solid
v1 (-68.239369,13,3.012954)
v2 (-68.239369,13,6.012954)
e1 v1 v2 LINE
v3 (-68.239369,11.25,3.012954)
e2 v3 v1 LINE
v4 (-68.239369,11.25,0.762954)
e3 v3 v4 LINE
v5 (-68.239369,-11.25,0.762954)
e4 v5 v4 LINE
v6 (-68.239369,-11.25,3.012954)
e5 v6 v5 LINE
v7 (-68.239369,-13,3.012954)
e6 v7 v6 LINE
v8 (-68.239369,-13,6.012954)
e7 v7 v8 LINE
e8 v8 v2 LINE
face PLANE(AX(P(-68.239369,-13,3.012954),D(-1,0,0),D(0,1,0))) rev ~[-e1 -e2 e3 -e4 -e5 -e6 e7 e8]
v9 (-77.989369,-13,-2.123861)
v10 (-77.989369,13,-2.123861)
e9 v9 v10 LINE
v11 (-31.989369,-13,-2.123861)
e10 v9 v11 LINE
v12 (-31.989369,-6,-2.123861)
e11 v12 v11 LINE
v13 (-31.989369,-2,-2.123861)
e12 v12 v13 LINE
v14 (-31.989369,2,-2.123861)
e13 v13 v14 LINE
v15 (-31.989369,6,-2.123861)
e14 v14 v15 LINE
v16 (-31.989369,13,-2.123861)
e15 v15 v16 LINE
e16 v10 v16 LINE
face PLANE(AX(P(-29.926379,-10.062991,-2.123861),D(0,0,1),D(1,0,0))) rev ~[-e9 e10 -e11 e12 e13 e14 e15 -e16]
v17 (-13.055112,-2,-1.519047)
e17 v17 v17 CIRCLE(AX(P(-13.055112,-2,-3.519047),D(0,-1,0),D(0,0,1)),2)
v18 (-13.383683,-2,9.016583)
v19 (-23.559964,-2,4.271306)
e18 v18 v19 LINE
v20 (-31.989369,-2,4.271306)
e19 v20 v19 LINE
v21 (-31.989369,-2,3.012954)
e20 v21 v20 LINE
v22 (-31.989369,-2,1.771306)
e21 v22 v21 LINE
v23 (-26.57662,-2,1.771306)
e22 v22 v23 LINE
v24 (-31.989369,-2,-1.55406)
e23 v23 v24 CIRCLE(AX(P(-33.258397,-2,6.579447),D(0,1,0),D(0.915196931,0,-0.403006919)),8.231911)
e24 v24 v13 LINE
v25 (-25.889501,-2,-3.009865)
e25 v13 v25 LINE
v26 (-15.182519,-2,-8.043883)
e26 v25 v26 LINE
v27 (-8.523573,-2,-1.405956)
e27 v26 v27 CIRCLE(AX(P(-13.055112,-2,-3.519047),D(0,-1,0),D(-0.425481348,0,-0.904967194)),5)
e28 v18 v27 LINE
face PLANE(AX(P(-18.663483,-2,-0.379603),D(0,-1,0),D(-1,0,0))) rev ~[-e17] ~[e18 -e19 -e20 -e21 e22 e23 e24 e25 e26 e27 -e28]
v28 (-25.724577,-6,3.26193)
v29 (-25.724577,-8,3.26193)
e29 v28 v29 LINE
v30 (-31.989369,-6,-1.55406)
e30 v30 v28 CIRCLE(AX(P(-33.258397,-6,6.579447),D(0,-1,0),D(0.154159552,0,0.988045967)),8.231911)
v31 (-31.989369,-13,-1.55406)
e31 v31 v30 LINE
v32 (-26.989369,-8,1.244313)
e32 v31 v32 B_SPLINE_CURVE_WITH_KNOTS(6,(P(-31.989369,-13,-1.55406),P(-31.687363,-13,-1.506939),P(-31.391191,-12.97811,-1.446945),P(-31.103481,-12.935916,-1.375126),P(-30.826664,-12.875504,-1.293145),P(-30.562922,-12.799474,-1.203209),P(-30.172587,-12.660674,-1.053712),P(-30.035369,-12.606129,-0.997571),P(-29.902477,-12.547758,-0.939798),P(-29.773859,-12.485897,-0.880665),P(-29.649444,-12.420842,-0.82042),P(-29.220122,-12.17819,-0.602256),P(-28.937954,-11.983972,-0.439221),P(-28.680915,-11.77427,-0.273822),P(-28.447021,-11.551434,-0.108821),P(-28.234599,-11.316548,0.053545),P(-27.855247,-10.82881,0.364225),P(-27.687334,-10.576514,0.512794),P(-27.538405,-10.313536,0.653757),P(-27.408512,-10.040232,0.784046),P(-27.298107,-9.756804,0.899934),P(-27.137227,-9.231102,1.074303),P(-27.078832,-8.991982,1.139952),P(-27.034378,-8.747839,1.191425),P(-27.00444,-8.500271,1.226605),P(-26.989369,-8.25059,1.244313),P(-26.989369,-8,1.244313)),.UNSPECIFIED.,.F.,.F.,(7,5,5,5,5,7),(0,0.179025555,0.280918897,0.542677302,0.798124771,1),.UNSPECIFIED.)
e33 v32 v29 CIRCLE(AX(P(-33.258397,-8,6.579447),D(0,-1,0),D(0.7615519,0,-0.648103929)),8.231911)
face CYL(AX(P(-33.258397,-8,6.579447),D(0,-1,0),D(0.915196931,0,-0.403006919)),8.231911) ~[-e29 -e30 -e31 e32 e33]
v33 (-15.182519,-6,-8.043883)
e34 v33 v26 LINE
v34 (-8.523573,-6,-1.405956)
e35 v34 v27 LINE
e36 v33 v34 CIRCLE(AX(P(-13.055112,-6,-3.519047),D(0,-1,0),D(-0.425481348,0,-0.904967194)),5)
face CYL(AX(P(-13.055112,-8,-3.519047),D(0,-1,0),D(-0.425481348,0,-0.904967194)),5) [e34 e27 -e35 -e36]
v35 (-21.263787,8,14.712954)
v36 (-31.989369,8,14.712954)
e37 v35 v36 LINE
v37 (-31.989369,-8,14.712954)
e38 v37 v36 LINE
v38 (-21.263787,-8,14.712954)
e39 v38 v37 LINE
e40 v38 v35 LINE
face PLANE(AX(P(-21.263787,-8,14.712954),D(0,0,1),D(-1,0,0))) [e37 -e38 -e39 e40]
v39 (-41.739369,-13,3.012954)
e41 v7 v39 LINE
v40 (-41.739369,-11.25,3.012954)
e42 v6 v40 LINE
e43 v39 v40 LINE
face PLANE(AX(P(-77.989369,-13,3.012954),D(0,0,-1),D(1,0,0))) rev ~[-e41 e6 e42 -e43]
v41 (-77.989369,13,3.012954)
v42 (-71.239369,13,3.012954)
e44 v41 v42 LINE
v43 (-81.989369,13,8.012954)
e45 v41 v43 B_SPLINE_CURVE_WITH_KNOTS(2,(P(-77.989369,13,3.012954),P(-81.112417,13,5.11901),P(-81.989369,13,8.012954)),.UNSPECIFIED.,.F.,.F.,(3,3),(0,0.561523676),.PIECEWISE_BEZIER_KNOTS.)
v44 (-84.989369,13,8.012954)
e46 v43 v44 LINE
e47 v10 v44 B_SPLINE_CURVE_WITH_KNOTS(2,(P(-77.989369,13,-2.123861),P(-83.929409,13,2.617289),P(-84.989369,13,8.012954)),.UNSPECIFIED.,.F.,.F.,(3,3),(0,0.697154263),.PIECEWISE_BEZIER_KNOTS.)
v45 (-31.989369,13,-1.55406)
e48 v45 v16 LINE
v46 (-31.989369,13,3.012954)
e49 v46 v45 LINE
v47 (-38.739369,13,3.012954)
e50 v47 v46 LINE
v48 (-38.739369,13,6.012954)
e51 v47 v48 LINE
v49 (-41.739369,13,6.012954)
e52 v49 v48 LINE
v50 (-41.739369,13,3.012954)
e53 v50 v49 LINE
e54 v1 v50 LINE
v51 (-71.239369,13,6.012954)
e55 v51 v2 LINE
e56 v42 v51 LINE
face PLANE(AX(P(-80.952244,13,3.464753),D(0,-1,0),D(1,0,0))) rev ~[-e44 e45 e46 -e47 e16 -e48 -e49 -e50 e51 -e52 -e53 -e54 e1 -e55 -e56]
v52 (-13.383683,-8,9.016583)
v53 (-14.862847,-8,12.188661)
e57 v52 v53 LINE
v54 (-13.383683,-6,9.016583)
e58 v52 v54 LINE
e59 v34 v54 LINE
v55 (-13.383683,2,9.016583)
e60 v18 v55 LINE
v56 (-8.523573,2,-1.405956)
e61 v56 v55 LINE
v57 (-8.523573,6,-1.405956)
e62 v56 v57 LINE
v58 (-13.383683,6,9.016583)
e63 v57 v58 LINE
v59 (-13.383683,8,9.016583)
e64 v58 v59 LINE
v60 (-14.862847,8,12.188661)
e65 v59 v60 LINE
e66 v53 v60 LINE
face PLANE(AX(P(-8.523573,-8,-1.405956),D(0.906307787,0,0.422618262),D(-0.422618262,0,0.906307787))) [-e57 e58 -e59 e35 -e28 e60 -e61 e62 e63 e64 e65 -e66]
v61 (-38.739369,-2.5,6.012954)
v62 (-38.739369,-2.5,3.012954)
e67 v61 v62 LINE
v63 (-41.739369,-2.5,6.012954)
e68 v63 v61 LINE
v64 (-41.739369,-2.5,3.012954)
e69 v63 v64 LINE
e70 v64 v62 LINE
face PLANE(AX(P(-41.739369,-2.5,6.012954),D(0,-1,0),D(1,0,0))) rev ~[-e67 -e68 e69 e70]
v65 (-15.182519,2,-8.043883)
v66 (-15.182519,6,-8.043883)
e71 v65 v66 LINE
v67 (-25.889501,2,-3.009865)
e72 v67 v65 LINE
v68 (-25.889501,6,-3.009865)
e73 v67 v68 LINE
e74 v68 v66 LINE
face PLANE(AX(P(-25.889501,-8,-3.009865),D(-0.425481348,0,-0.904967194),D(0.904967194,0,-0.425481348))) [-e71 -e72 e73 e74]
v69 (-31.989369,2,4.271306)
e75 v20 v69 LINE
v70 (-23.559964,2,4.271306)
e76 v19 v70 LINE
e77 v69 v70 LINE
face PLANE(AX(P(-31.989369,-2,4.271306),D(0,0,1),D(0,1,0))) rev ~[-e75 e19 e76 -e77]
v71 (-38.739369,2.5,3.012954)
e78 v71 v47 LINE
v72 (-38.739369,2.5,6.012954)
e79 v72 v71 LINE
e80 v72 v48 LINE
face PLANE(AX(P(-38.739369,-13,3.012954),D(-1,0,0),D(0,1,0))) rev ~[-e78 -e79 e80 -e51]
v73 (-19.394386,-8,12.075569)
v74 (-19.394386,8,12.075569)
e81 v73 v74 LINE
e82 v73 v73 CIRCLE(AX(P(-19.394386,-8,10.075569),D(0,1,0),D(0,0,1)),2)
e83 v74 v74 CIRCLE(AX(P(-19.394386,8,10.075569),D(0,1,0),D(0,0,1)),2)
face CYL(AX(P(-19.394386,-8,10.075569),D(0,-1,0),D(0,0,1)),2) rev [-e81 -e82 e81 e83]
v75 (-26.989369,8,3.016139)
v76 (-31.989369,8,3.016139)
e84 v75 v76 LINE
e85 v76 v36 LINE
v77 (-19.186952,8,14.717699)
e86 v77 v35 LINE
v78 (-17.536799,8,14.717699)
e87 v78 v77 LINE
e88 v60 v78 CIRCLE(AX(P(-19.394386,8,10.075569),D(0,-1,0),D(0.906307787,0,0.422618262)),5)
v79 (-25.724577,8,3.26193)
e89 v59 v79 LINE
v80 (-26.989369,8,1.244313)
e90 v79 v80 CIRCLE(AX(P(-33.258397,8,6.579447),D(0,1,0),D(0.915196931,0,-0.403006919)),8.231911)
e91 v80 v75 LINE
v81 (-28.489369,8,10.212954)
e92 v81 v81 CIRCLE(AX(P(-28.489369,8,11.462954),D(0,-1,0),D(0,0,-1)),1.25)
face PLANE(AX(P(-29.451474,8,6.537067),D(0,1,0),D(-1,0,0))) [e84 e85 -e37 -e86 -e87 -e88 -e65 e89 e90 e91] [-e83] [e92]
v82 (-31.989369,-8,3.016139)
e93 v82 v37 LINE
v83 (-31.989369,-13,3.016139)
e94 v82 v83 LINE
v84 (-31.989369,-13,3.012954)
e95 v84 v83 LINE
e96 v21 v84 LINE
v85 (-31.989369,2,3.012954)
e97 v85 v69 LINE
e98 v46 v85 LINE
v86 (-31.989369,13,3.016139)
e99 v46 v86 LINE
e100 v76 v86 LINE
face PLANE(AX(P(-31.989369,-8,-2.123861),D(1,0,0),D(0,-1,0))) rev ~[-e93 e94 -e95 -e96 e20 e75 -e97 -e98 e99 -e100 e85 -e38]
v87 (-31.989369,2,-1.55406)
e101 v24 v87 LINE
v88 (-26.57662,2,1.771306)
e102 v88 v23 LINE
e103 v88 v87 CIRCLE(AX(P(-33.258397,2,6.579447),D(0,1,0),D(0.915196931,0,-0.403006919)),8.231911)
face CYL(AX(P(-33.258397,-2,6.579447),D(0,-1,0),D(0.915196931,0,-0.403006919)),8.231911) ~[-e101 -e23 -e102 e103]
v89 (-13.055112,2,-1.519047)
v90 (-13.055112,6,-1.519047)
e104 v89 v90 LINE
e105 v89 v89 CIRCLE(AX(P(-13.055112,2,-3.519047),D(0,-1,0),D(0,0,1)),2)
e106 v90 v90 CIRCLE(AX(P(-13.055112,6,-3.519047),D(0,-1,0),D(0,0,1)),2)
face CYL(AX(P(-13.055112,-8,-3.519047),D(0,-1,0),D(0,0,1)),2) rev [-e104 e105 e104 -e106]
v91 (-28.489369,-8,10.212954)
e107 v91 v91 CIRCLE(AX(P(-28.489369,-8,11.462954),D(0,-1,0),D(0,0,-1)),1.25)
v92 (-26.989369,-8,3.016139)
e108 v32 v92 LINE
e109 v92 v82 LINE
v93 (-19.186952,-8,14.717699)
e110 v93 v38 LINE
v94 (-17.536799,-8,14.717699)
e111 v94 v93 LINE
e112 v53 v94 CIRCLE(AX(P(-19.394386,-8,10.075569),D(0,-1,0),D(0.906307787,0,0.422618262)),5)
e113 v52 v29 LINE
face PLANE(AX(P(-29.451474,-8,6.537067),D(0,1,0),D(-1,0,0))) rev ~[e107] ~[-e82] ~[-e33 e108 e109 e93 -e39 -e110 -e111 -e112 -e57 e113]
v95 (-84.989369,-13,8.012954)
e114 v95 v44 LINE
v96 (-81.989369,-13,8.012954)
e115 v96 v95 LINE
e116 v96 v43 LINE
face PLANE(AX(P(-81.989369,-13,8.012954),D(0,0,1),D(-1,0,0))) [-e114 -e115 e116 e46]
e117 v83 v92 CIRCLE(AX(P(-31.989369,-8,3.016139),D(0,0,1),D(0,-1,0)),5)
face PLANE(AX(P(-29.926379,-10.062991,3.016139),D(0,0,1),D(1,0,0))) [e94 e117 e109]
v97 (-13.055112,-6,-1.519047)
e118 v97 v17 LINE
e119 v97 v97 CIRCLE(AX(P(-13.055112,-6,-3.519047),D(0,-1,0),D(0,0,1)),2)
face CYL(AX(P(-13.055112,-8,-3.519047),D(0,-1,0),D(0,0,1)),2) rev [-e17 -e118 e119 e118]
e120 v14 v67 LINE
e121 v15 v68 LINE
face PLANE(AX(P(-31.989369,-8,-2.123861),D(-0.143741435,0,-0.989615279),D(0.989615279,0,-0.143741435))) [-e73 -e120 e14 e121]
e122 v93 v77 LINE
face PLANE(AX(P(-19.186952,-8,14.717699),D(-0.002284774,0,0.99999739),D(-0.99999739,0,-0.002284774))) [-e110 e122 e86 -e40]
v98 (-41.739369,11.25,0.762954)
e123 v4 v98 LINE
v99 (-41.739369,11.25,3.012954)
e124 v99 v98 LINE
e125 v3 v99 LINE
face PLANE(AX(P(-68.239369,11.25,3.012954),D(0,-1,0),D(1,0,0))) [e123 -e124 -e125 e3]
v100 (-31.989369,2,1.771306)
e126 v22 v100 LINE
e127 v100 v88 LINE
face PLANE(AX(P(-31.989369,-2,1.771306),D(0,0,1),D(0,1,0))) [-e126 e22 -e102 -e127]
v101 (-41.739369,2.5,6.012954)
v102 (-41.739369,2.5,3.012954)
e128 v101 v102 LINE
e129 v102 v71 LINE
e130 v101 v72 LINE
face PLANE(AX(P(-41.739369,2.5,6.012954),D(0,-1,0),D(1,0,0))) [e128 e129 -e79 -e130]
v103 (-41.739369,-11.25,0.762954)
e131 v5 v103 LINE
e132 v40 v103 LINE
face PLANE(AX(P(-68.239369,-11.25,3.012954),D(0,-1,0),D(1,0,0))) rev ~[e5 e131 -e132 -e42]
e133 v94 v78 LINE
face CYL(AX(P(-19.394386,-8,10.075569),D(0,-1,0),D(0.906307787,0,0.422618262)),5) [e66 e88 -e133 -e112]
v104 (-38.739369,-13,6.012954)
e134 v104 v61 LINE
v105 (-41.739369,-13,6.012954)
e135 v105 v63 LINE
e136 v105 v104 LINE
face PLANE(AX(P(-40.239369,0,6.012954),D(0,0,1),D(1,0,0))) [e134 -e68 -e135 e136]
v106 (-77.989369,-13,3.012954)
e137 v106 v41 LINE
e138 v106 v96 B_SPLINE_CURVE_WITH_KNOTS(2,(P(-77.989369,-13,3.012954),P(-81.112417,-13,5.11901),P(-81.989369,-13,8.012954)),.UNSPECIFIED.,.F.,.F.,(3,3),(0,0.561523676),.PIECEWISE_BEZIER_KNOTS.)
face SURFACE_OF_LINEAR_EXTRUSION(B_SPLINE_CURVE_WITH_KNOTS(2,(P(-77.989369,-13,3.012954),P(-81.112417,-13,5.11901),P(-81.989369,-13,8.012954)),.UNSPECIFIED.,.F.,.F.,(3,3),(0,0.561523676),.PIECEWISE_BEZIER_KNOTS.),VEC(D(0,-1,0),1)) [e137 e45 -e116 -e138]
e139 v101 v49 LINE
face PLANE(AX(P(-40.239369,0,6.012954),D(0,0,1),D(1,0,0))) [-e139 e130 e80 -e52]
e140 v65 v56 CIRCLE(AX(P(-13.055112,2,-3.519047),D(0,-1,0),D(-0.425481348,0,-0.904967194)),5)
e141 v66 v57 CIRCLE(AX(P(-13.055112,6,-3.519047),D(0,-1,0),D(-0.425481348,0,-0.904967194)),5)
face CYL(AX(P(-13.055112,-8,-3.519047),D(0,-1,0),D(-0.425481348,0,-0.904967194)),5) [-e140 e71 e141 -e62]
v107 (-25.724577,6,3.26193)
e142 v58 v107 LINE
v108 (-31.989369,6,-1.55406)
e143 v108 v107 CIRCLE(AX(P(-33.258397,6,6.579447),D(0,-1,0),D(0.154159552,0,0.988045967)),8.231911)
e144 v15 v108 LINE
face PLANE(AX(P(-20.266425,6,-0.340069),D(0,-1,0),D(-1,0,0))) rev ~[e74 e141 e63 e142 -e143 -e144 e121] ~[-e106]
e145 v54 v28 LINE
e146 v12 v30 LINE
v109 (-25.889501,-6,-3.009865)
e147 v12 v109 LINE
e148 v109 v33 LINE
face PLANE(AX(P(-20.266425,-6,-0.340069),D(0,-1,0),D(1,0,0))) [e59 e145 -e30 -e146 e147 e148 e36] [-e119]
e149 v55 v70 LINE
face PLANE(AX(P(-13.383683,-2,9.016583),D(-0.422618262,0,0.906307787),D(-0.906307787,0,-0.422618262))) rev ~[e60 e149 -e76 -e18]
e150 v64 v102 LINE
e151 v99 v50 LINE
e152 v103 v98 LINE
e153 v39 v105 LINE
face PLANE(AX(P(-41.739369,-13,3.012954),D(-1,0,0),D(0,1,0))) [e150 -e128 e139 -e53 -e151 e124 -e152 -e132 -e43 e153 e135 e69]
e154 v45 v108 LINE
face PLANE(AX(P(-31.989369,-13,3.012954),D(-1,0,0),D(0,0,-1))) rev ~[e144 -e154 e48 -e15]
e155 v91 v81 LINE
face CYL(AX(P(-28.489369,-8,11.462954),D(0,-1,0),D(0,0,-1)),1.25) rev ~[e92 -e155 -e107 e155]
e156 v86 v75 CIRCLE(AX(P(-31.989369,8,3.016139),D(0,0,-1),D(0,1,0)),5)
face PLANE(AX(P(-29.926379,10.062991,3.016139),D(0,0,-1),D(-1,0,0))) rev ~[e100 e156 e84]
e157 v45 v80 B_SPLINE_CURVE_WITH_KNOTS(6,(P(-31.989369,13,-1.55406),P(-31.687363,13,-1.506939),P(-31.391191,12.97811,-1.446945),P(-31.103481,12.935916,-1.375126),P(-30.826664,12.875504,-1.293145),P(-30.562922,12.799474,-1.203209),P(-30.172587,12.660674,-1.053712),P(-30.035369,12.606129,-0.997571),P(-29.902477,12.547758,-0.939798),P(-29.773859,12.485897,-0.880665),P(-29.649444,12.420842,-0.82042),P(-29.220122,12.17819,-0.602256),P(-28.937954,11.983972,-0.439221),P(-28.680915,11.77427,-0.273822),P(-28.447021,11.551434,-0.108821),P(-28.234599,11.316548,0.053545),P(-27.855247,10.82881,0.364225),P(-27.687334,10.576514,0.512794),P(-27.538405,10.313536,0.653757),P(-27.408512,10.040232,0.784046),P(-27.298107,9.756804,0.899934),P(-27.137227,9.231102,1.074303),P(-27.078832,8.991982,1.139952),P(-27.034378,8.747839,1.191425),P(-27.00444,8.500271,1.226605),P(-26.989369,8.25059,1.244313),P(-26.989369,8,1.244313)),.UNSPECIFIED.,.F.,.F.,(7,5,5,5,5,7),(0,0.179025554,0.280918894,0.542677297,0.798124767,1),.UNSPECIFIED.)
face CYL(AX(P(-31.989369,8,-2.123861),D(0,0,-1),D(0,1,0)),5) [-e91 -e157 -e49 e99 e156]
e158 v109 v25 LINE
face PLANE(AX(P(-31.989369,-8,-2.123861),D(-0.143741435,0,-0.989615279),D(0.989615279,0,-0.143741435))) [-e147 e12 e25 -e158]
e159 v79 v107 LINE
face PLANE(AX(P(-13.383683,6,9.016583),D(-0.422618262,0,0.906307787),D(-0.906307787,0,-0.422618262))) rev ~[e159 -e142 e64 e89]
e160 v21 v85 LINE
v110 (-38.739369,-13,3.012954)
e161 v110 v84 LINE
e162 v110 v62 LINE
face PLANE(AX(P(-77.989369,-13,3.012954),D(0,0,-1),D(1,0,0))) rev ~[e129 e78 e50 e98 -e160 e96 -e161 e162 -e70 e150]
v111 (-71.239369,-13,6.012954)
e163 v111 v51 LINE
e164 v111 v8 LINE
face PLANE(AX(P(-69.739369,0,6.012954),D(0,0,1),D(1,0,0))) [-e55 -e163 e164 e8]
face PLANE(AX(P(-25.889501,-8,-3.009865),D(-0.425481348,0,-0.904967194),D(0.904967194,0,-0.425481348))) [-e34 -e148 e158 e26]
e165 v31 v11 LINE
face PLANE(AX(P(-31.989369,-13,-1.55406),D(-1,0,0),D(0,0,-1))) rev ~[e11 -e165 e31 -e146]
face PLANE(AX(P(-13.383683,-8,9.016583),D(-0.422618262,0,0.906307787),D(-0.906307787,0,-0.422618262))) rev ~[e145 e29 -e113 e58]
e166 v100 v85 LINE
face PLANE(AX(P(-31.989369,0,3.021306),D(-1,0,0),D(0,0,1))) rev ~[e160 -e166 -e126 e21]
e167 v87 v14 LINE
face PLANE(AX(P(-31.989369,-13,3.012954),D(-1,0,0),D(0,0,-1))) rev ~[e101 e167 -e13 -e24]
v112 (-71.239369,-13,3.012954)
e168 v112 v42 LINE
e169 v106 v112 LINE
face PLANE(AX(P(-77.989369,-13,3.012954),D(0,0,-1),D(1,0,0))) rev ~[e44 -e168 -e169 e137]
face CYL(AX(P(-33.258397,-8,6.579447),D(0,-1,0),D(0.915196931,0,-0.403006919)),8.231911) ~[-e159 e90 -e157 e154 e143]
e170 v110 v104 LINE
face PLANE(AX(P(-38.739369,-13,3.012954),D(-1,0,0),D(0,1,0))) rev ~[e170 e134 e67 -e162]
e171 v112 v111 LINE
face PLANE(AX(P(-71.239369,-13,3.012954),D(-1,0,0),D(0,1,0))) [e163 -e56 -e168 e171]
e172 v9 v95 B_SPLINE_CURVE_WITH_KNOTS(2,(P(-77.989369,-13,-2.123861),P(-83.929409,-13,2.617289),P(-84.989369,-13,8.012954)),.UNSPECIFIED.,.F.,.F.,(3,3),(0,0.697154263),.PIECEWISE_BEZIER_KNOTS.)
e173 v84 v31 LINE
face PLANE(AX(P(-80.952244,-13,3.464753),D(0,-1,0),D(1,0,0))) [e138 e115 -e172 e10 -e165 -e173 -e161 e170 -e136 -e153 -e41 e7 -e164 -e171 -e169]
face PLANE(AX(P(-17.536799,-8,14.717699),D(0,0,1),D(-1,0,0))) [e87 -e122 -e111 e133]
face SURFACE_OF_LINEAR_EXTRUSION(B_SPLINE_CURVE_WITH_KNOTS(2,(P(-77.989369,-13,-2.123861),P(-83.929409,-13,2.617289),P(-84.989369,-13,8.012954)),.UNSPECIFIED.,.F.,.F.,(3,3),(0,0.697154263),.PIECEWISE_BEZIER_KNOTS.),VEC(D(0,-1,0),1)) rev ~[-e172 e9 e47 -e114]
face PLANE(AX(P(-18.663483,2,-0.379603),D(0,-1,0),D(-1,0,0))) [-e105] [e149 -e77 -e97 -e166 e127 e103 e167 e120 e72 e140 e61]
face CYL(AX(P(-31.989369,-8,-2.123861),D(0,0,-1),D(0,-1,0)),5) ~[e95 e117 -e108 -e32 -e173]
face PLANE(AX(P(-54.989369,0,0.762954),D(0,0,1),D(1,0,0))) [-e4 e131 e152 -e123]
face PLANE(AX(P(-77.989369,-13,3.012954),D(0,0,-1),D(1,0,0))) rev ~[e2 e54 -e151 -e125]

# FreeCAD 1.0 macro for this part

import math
import FreeCAD as App
import Part
import Sketcher
from FreeCAD import Vector
Q = App.Units.Quantity


def add_polygon(sketch, points):
    """Adds a closed chain of lines whose ends are joined by coincident constraints."""
    first, n = sketch.GeometryCount, len(points)
    for a, b in zip(points, points[1:] + points[:1]):
        sketch.addGeometry(Part.LineSegment(App.Vector(*a, 0), App.Vector(*b, 0)), False)
    for i in range(n):
        sketch.addConstraint(Sketcher.Constraint("Coincident", first + i, 2, first + (i + 1) % n, 1))

doc = App.newDocument("Part")
body = doc.addObject("PartDesign::Body", "Body")

sketch1 = doc.addObject("Sketcher::SketchObject", "Sketch")
body.addObject(sketch1)
sketch1.AttachmentSupport = (doc.XZ_Plane, [""])
sketch1.MapMode = "FlatFace"
sketch1.addGeometry([
    Part.LineSegment(Vector(-14.862847, 12.188661, 0), Vector(-8.523573, -1.405956, 0)),
    Part.ArcOfCircle(Part.Circle(Vector(-13.055112, -3.519047, 0), Vector(0, 0, 1), 5), math.radians(-115.181135), math.radians(25)),
    Part.LineSegment(Vector(-15.182519, -8.043883, 0), Vector(-25.889501, -3.009865, 0)),
    Part.LineSegment(Vector(-25.889501, -3.009865, 0), Vector(-31.989369, -2.123861, 0)),
    Part.LineSegment(Vector(-31.989369, -2.123861, 0), Vector(-31.989369, -1.55406, 0)),
    Part.ArcOfCircle(Part.Circle(Vector(-33.258397, 6.579447, 0), Vector(0, 0, 1), 8.231911), math.radians(-81.131944), math.radians(81.131944)),
    Part.LineSegment(Vector(-31.989369, 14.712954, 0), Vector(-21.263787, 14.712954, 0)),
    Part.LineSegment(Vector(-21.263787, 14.712954, 0), Vector(-19.186952, 14.717699, 0)),
    Part.LineSegment(Vector(-19.186952, 14.717699, 0), Vector(-17.536799, 14.717699, 0)),
    Part.ArcOfCircle(Part.Circle(Vector(-19.394386, 10.075569, 0), Vector(0, 0, 1), 5), math.radians(25), math.radians(68.190768)),
    Part.Circle(Vector(-19.394386, 10.075569, 0), Vector(0, 0, 1), 2),
    Part.Circle(Vector(-13.055112, -3.519047, 0), Vector(0, 0, 1), 2),
], False)
sketch1.addConstraint([
    Sketcher.Constraint("Coincident", 0, 2, 1, 2),
    Sketcher.Constraint("Coincident", 1, 1, 2, 1),
    Sketcher.Constraint("Coincident", 2, 2, 3, 1),
    Sketcher.Constraint("Coincident", 3, 2, 4, 1),
    Sketcher.Constraint("Coincident", 4, 2, 5, 1),
    Sketcher.Constraint("Coincident", 5, 2, 6, 1),
    Sketcher.Constraint("Coincident", 6, 2, 7, 1),
    Sketcher.Constraint("Coincident", 7, 2, 8, 1),
    Sketcher.Constraint("Coincident", 8, 2, 9, 2),
    Sketcher.Constraint("Coincident", 9, 1, 0, 1),
    Sketcher.Constraint("Vertical", 4),
    Sketcher.Constraint("Horizontal", 6),
    Sketcher.Constraint("Horizontal", 8),
    Sketcher.Constraint("Coincident", 10, 3, 9, 3),
    Sketcher.Constraint("Coincident", 11, 3, 1, 3),
    Sketcher.Constraint("Diameter", 10, 4.0),
    Sketcher.Constraint("Diameter", 11, 4.0),
    Sketcher.Constraint("Radius", 1, 5.0),
    Sketcher.Constraint("Radius", 9, 5.0),
    Sketcher.Constraint("Distance", 0, 15.0),
    Sketcher.Constraint("Radius", 5, 8.231911),
    Sketcher.Constraint("DistanceY", 4, 1, 4, 2, 0.569801),
    Sketcher.Constraint("DistanceX", 6, 1, 6, 2, 10.725582),
    Sketcher.Constraint("DistanceX", 2, 2, -1, 1, 25.889501),
    Sketcher.Constraint("DistanceY", -1, 1, 7, 2, 14.717699),
    Sketcher.Constraint("DistanceX", 8, 2, -1, 1, 17.536799),
    Sketcher.Constraint("DistanceX", 6, 2, 10, 3, 1.869402),
    Sketcher.Constraint("Distance", 2, 11.831348),
    Sketcher.Constraint("Distance", 3, 6.163879),
    Sketcher.Constraint("Distance", 7, 2.076841),
    Sketcher.Constraint("DistanceX", 8, 1, 8, 2, 1.650153),
    Sketcher.Constraint("DistanceX", 1, 3, -1, 1, 13.055112),
    Sketcher.Constraint("DistanceX", 1, 1, -1, 1, 15.182519),
    Sketcher.Constraint("DistanceX", 3, 2, -1, 1, 31.989369),
    Sketcher.Constraint("DistanceY", 3, 2, -1, 1, 2.123861),
    Sketcher.Constraint("DistanceY", -1, 1, 9, 1, 12.188661),
    Sketcher.Constraint("DistanceX", 5, 3, 9, 3, 13.864011),
])
pad1 = doc.addObject("PartDesign::Pad", "Pad")
body.addObject(pad1)
pad1.Profile = sketch1
pad1.Type = "TwoLengths"
pad1.Length = 8
pad1.Length2 = 8
pad1.Reversed = True

sketch2 = doc.addObject("Sketcher::SketchObject", "Sketch001")
body.addObject(sketch2)
sketch2.AttachmentSupport = (doc.XZ_Plane, [""])
sketch2.MapMode = "FlatFace"
sketch2.AttachmentOffset = App.Placement(Vector(0, 0, 8), App.Rotation())
sketch2.addGeometry([
    Part.LineSegment(Vector(-13, 9, 0), Vector(-36, -2, 0)),
    Part.LineSegment(Vector(-36, -2, 0), Vector(-26, -3, 0)),
    Part.LineSegment(Vector(-26, -3, 0), Vector(-15, -8, 0)),
    Part.ArcOfCircle(Part.Circle(Vector(-13, -4, 0), Vector(0, 0, 1), 5), math.radians(-115), math.radians(25)),
    Part.LineSegment(Vector(-9, -1, 0), Vector(-13, 9, 0)),
], False)
sketch2.addConstraint([
    Sketcher.Constraint("Coincident", 0, 2, 1, 1),
    Sketcher.Constraint("Coincident", 1, 2, 2, 1),
    Sketcher.Constraint("Tangent", 2, 2, 3, 1),
    Sketcher.Constraint("Tangent", 3, 2, 4, 1),
    Sketcher.Constraint("Coincident", 4, 2, 0, 1),
    Sketcher.Constraint("Perpendicular", 0, 4),
    Sketcher.Constraint("Radius", 3, 5.0),
    Sketcher.Constraint("Angle", 0, Q("-155 deg")),
    Sketcher.Constraint("Distance", 4, 11.5),
    Sketcher.Constraint("DistanceX", 1, 2, -1, 1, 25.889501),
    Sketcher.Constraint("Distance", 2, 11.831348),
    Sketcher.Constraint("DistanceX", 3, 3, -1, 1, 13.055112),
    Sketcher.Constraint("DistanceY", 0, 2, -1, 1, 1.538529),
    Sketcher.Constraint("DistanceY", 3, 3, 0, 2, 1.980518),
])
pocket1 = doc.addObject("PartDesign::Pocket", "Pocket")
body.addObject(pocket1)
pocket1.Profile = sketch2
pocket1.Length = 2

sketch3 = doc.addObject("Sketcher::SketchObject", "Sketch002")
body.addObject(sketch3)
sketch3.AttachmentSupport = (doc.XZ_Plane, [""])
sketch3.MapMode = "FlatFace"
sketch3.AttachmentOffset = App.Placement(Vector(0, 0, -6), App.Rotation())
sketch3.addGeometry([
    Part.LineSegment(Vector(-36, -2, 0), Vector(-13, 9, 0)),
    Part.LineSegment(Vector(-13, 9, 0), Vector(-9, -1, 0)),
    Part.ArcOfCircle(Part.Circle(Vector(-13, -4, 0), Vector(0, 0, 1), 5), math.radians(-115), math.radians(25)),
    Part.LineSegment(Vector(-15, -8, 0), Vector(-26, -3, 0)),
    Part.LineSegment(Vector(-26, -3, 0), Vector(-36, -2, 0)),
], False)
sketch3.addConstraint([
    Sketcher.Constraint("Coincident", 0, 2, 1, 1),
    Sketcher.Constraint("Tangent", 1, 2, 2, 2),
    Sketcher.Constraint("Tangent", 2, 1, 3, 1),
    Sketcher.Constraint("Coincident", 3, 2, 4, 1),
    Sketcher.Constraint("Coincident", 4, 2, 0, 1),
    Sketcher.Constraint("Perpendicular", 0, 1),
    Sketcher.Constraint("Radius", 2, 5.0),
    Sketcher.Constraint("Angle", 0, Q("25 deg")),
    Sketcher.Constraint("Distance", 1, 11.5),
    Sketcher.Constraint("DistanceX", 3, 2, -1, 1, 25.889501),
    Sketcher.Constraint("Distance", 3, 11.831348),
    Sketcher.Constraint("DistanceX", 2, 3, -1, 1, 13.055112),
    Sketcher.Constraint("DistanceY", 4, 2, -1, 1, 1.538529),
    Sketcher.Constraint("DistanceY", 2, 3, 4, 2, 1.980518),
])
pocket2 = doc.addObject("PartDesign::Pocket", "Pocket001")
body.addObject(pocket2)
pocket2.Profile = sketch3
pocket2.Length = 2

sketch4 = doc.addObject("Sketcher::SketchObject", "Sketch003")
body.addObject(sketch4)
sketch4.AttachmentSupport = (doc.XZ_Plane, [""])
sketch4.MapMode = "FlatFace"
sketch4.AttachmentOffset = App.Placement(Vector(0, 0, 8), App.Rotation())
sketch4.addGeometry([
    Part.LineSegment(Vector(-32, 15, 0), Vector(-32, -2, 0)),
    Part.ArcOfCircle(Part.Circle(Vector(-33, 7, 0), Vector(0, 0, 1), 8), math.radians(-81), math.radians(-24)),
    Part.ArcOfCircle(Part.Circle(Vector(-33, 7, 0), Vector(0, 0, 1), 8), math.radians(-24), math.radians(81)),
], False)
sketch4.addConstraint([
    Sketcher.Constraint("Coincident", 0, 2, 1, 1),
    Sketcher.Constraint("Tangent", 1, 2, 2, 1),
    Sketcher.Constraint("Coincident", 2, 2, 0, 1),
    Sketcher.Constraint("Vertical", 0),
    Sketcher.Constraint("Equal", 1, 2),
    Sketcher.Constraint("Radius", 1, 8.231911),
    Sketcher.Constraint("DistanceY", 0, 2, 0, 1, 16.267014),
    Sketcher.Constraint("DistanceX", 0, 2, -1, 1, 31.989369),
    Sketcher.Constraint("DistanceY", 0, 2, -1, 1, 1.55406),
    Sketcher.Constraint("DistanceY", -1, 1, 1, 2, 3.26193),
])
pad2 = doc.addObject("PartDesign::Pad", "Pad001")
body.addObject(pad2)
pad2.Profile = sketch4
pad2.Length = 16
pad2.Reversed = True

sketch5 = doc.addObject("Sketcher::SketchObject", "Sketch004")
body.addObject(sketch5)
sketch5.AttachmentSupport = (doc.XZ_Plane, [""])
sketch5.MapMode = "FlatFace"
sketch5.addGeometry([
    Part.LineSegment(Vector(-15.2, -8, 0), Vector(-25.9, -3, 0)),
    Part.LineSegment(Vector(-25.9, -3, 0), Vector(-32, -2.1, 0)),
    Part.LineSegment(Vector(-32, -2.1, 0), Vector(-32, -1.6, 0)),
    Part.ArcOfCircle(Part.Circle(Vector(-33.3, 6.6, 0), Vector(0, 0, 1), 8.2), math.radians(-81), math.radians(-24)),
    Part.LineSegment(Vector(-25.7, 3.3, 0), Vector(-13.4, 9, 0)),
    Part.LineSegment(Vector(-13.4, 9, 0), Vector(-8.5, -1.4, 0)),
    Part.ArcOfCircle(Part.Circle(Vector(-13.1, -3.5, 0), Vector(0, 0, 1), 5), math.radians(-115), math.radians(25)),
], False)
sketch5.addConstraint([
    Sketcher.Constraint("Coincident", 0, 2, 1, 1),
    Sketcher.Constraint("Coincident", 1, 2, 2, 1),
    Sketcher.Constraint("Coincident", 2, 2, 3, 1),
    Sketcher.Constraint("Coincident", 3, 2, 4, 1),
    Sketcher.Constraint("Coincident", 4, 2, 5, 1),
    Sketcher.Constraint("Tangent", 5, 2, 6, 2),
    Sketcher.Constraint("Tangent", 6, 1, 0, 1),
    Sketcher.Constraint("Vertical", 2),
    Sketcher.Constraint("Perpendicular", 4, 5),
    Sketcher.Constraint("Radius", 6, 5.0),
    Sketcher.Constraint("Angle", 4, Q("25 deg")),
    Sketcher.Constraint("Distance", 5, 11.5),
    Sketcher.Constraint("Radius", 3, 8.231911),
    Sketcher.Constraint("DistanceY", 2, 1, 2, 2, 0.569801),
    Sketcher.Constraint("DistanceX", 0, 2, -1, 1, 25.889501),
    Sketcher.Constraint("Distance", 0, 11.831348),
    Sketcher.Constraint("Distance", 1, 6.163879),
    Sketcher.Constraint("Distance", 4, 13.61667),
    Sketcher.Constraint("DistanceX", 6, 3, -1, 1, 13.055112),
    Sketcher.Constraint("DistanceX", 1, 2, -1, 1, 31.989369),
    Sketcher.Constraint("DistanceY", 1, 2, -1, 1, 2.123861),
])
pocket3 = doc.addObject("PartDesign::Pocket", "Pocket002")
body.addObject(pocket3)
pocket3.Profile = sketch5
pocket3.Type = "TwoLengths"
pocket3.Length = 2
pocket3.Length2 = 2

sketch6 = doc.addObject("Sketcher::SketchObject", "Sketch005")
body.addObject(sketch6)
sketch6.AttachmentSupport = (doc.XZ_Plane, [""])
sketch6.MapMode = "FlatFace"
add_polygon(sketch6, [(-78, -2), (-78, 3), (-32, 3), (-32, -2)])
sketch6.addConstraint([
    Sketcher.Constraint("Vertical", 0),
    Sketcher.Constraint("Horizontal", 1),
    Sketcher.Constraint("Vertical", 2),
    Sketcher.Constraint("Horizontal", 3),
    Sketcher.Constraint("DistanceX", 1, 1, 1, 2, 46.0),
    Sketcher.Constraint("DistanceY", 0, 1, 0, 2, 5.136815),
    Sketcher.Constraint("DistanceX", 0, 2, -1, 1, 77.989369),
    Sketcher.Constraint("DistanceY", 2, 2, -1, 1, 2.123861),
])
pad3 = doc.addObject("PartDesign::Pad", "Pad002")
body.addObject(pad3)
pad3.Profile = sketch6
pad3.Type = "TwoLengths"
pad3.Length = 13
pad3.Length2 = 13
pad3.Reversed = True

sketch7 = doc.addObject("Sketcher::SketchObject", "Sketch006")
body.addObject(sketch7)
sketch7.AttachmentSupport = (doc.XZ_Plane, [""])
sketch7.MapMode = "FlatFace"
sketch7.AttachmentOffset = App.Placement(Vector(0, 0, 8), App.Rotation())
sketch7.addGeometry(Part.Circle(Vector(-28.5, 11.5, 0), Vector(0, 0, 1), 1.2), False)
sketch7.addConstraint([
    Sketcher.Constraint("Diameter", 0, 2.5),
    Sketcher.Constraint("DistanceX", 0, 3, -1, 1, 28.489369),
    Sketcher.Constraint("DistanceY", -1, 1, 0, 3, 11.462954),
])
pocket4 = doc.addObject("PartDesign::Pocket", "Pocket003")
body.addObject(pocket4)
pocket4.Profile = sketch7
pocket4.Length = 16

sketch8 = doc.addObject("Sketcher::SketchObject", "Sketch007")
body.addObject(sketch8)
sketch8.AttachmentSupport = (doc.XZ_Plane, [""])
sketch8.MapMode = "FlatFace"
sketch8.AttachmentOffset = App.Placement(Vector(0, 0, 13), App.Rotation())
sketch8.addGeometry([
    Part.LineSegment(Vector(-81.989369, 8.012954, 0), Vector(-84.989369, 8.012954, 0)),
    Part.BSplineCurve([Vector(-77.989369, -2.123861, 0), Vector(-83.929409, 2.617289, 0), Vector(-84.989369, 8.012954, 0)], [3, 3], [0, 0.697154263], False, 2, [1, 1, 1], False),
    Part.LineSegment(Vector(-77.989369, -2.123861, 0), Vector(-77.989369, 3.012954, 0)),
    Part.BSplineCurve([Vector(-77.989369, 3.012954, 0), Vector(-81.112417, 5.11901, 0), Vector(-81.989369, 8.012954, 0)], [3, 3], [0, 0.561523676], False, 2, [1, 1, 1], False),
], False)
sketch8.addConstraint([
    Sketcher.Constraint("Block", 1),
    Sketcher.Constraint("Block", 3),
    Sketcher.Constraint("Coincident", 0, 2, 1, 2),
    Sketcher.Constraint("Coincident", 1, 1, 2, 1),
    Sketcher.Constraint("Coincident", 2, 2, 3, 1),
    Sketcher.Constraint("Coincident", 3, 2, 0, 1),
])
pad4 = doc.addObject("PartDesign::Pad", "Pad003")
body.addObject(pad4)
pad4.Profile = sketch8
pad4.Length = 26
pad4.Reversed = True

sketch9 = doc.addObject("Sketcher::SketchObject", "Sketch008")
body.addObject(sketch9)
sketch9.AttachmentSupport = (doc.XY_Plane, [""])
sketch9.MapMode = "FlatFace"
sketch9.AttachmentOffset = App.Placement(Vector(0, 0, 3.012954), App.Rotation())
add_polygon(sketch9, [(-41.7, 13), (-41.7, -13), (-38.7, -13), (-38.7, 13)])
add_polygon(sketch9, [(-71.2, 13), (-71.2, -13), (-68.2, -13), (-68.2, 13)])
sketch9.addConstraint([
    Sketcher.Constraint("Vertical", 0),
    Sketcher.Constraint("Horizontal", 1),
    Sketcher.Constraint("Vertical", 2),
    Sketcher.Constraint("Horizontal", 3),
    Sketcher.Constraint("Vertical", 4),
    Sketcher.Constraint("Horizontal", 5),
    Sketcher.Constraint("Vertical", 6),
    Sketcher.Constraint("Horizontal", 7),
    Sketcher.Constraint("Horizontal", 1, 2, 4, 2),
    Sketcher.Constraint("Horizontal", 3, 2, 6, 2),
    Sketcher.Constraint("Equal", 3, 5),
    Sketcher.Constraint("DistanceX", 1, 1, 1, 2, 3.0),
    Sketcher.Constraint("DistanceY", 0, 2, 0, 1, 26.0),
    Sketcher.Constraint("DistanceY", 0, 2, -1, 1, 13.0),
    Sketcher.Constraint("DistanceX", 4, 2, 0, 2, 29.5),
    Sketcher.Constraint("DistanceX", 0, 2, -1, 1, 41.739369),
])
pad5 = doc.addObject("PartDesign::Pad", "Pad004")
body.addObject(pad5)
pad5.Profile = sketch9
pad5.Length = 3

sketch10 = doc.addObject("Sketcher::SketchObject", "Sketch009")
body.addObject(sketch10)
sketch10.AttachmentSupport = (doc.YZ_Plane, [""])
sketch10.MapMode = "FlatFace"
sketch10.AttachmentOffset = App.Placement(Vector(0, 0, -31.989369), App.Rotation())
add_polygon(sketch10, [(2, 1.8), (-2, 1.8), (-2, 4.3), (2, 4.3)])
sketch10.addConstraint([
    Sketcher.Constraint("Horizontal", 0),
    Sketcher.Constraint("Vertical", 1),
    Sketcher.Constraint("Horizontal", 2),
    Sketcher.Constraint("Vertical", 3),
    Sketcher.Constraint("DistanceX", 0, 2, 0, 1, 4.0),
    Sketcher.Constraint("DistanceY", 1, 1, 1, 2, 2.5),
    Sketcher.Constraint("DistanceX", 0, 2, -1, 1, 2.0),
    Sketcher.Constraint("DistanceY", -1, 1, 0, 2, 1.771306),
])
pocket5 = doc.addObject("PartDesign::Pocket", "Pocket004")
body.addObject(pocket5)
pocket5.Profile = sketch10
pocket5.Type = "ThroughAll"
pocket5.Reversed = True

sketch11 = doc.addObject("Sketcher::SketchObject", "Sketch010")
body.addObject(sketch11)
sketch11.AttachmentSupport = (doc.XY_Plane, [""])
sketch11.MapMode = "FlatFace"
sketch11.AttachmentOffset = App.Placement(Vector(0, 0, -2.123861), App.Rotation())
sketch11.addGeometry([
    Part.LineSegment(Vector(-27, 8, 0), Vector(-32, 8, 0)),
    Part.LineSegment(Vector(-32, 8, 0), Vector(-32, 13, 0)),
    Part.ArcOfCircle(Part.Circle(Vector(-32, 8, 0), Vector(0, 0, 1), 5), math.radians(0), math.radians(90)),
], False)
sketch11.addConstraint([
    Sketcher.Constraint("Coincident", 0, 2, 1, 1),
    Sketcher.Constraint("Coincident", 1, 2, 2, 2),
    Sketcher.Constraint("Coincident", 2, 1, 0, 1),
    Sketcher.Constraint("Horizontal", 0),
    Sketcher.Constraint("Vertical", 1),
    Sketcher.Constraint("Coincident", 0, 2, 2, 3),
    Sketcher.Constraint("Radius", 2, 5.0),
    Sketcher.Constraint("DistanceY", -1, 1, 2, 3, 8.0),
    Sketcher.Constraint("DistanceX", 2, 3, -1, 1, 31.989369),
])
pad6 = doc.addObject("PartDesign::Pad", "Pad005")
body.addObject(pad6)
pad6.Profile = sketch11
pad6.Length = 5.14

sketch12 = doc.addObject("Sketcher::SketchObject", "Sketch011")
body.addObject(sketch12)
sketch12.AttachmentSupport = (doc.XZ_Plane, [""])
sketch12.MapMode = "FlatFace"
sketch12.AttachmentOffset = App.Placement(Vector(0, 0, -7.86), App.Rotation())
sketch12.addGeometry([
    Part.LineSegment(Vector(-32, -2.1, 0), Vector(-32, -1.6, 0)),
    Part.ArcOfCircle(Part.Circle(Vector(-33.3, 6.6, 0), Vector(0, 0, 1), 8.2), math.radians(-81), math.radians(-40)),
    Part.LineSegment(Vector(-27, 1.2, 0), Vector(-27, -2.1, 0)),
    Part.LineSegment(Vector(-27, -2.1, 0), Vector(-32, -2.1, 0)),
], False)
sketch12.addConstraint([
    Sketcher.Constraint("Coincident", 0, 2, 1, 1),
    Sketcher.Constraint("Coincident", 1, 2, 2, 1),
    Sketcher.Constraint("Coincident", 2, 2, 3, 1),
    Sketcher.Constraint("Coincident", 3, 2, 0, 1),
    Sketcher.Constraint("Vertical", 0),
    Sketcher.Constraint("Vertical", 2),
    Sketcher.Constraint("Horizontal", 3),
    Sketcher.Constraint("DistanceX", 3, 2, 3, 1, 5.0),
    Sketcher.Constraint("Radius", 1, 8.231911),
    Sketcher.Constraint("DistanceY", 0, 1, 0, 2, 0.569801),
    Sketcher.Constraint("DistanceY", 2, 2, 2, 1, 3.368174),
    Sketcher.Constraint("DistanceX", 0, 2, -1, 1, 31.989369),
    Sketcher.Constraint("DistanceY", 0, 2, -1, 1, 1.55406),
])
pocket6 = doc.addObject("PartDesign::Pocket", "Pocket005")
body.addObject(pocket6)
pocket6.Profile = sketch12
pocket6.Length = 5.14

sketch13 = doc.addObject("Sketcher::SketchObject", "Sketch012")
body.addObject(sketch13)
sketch13.AttachmentSupport = (doc.XY_Plane, [""])
sketch13.MapMode = "FlatFace"
sketch13.AttachmentOffset = App.Placement(Vector(0, 0, -2.123861), App.Rotation())
sketch13.addGeometry([
    Part.LineSegment(Vector(-32, -13, 0), Vector(-32, -8, 0)),
    Part.LineSegment(Vector(-32, -8, 0), Vector(-27, -8, 0)),
    Part.ArcOfCircle(Part.Circle(Vector(-32, -8, 0), Vector(0, 0, 1), 5), math.radians(-90), math.radians(0)),
], False)
sketch13.addConstraint([
    Sketcher.Constraint("Coincident", 0, 2, 1, 1),
    Sketcher.Constraint("Coincident", 1, 2, 2, 2),
    Sketcher.Constraint("Coincident", 2, 1, 0, 1),
    Sketcher.Constraint("Vertical", 0),
    Sketcher.Constraint("Horizontal", 1),
    Sketcher.Constraint("Coincident", 0, 2, 2, 3),
    Sketcher.Constraint("Radius", 2, 5.0),
    Sketcher.Constraint("DistanceY", 2, 3, -1, 1, 8.0),
    Sketcher.Constraint("DistanceX", 2, 3, -1, 1, 31.989369),
])
pad7 = doc.addObject("PartDesign::Pad", "Pad006")
body.addObject(pad7)
pad7.Profile = sketch13
pad7.Length = 5.14

sketch14 = doc.addObject("Sketcher::SketchObject", "Sketch013")
body.addObject(sketch14)
sketch14.AttachmentSupport = (doc.XZ_Plane, [""])
sketch14.MapMode = "FlatFace"
sketch14.AttachmentOffset = App.Placement(Vector(0, 0, 13), App.Rotation())
sketch14.addGeometry([
    Part.LineSegment(Vector(-32, -1.6, 0), Vector(-32, -2.1, 0)),
    Part.LineSegment(Vector(-32, -2.1, 0), Vector(-25.8, -2.1, 0)),
    Part.LineSegment(Vector(-25.8, -2.1, 0), Vector(-25.8, 3, 0)),
    Part.ArcOfCircle(Part.Circle(Vector(-33.3, 6.6, 0), Vector(0, 0, 1), 8.2), math.radians(-40.4), math.radians(-25.65)),
    Part.ArcOfCircle(Part.Circle(Vector(-33.3, 6.6, 0), Vector(0, 0, 1), 8.2), math.radians(-81), math.radians(-40)),
], False)
sketch14.addConstraint([
    Sketcher.Constraint("Coincident", 0, 2, 1, 1),
    Sketcher.Constraint("Coincident", 1, 2, 2, 1),
    Sketcher.Constraint("Coincident", 2, 2, 3, 2),
    Sketcher.Constraint("Tangent", 3, 1, 4, 2),
    Sketcher.Constraint("Coincident", 4, 1, 0, 1),
    Sketcher.Constraint("Vertical", 0),
    Sketcher.Constraint("Horizontal", 1),
    Sketcher.Constraint("Vertical", 2),
    Sketcher.Constraint("Equal", 3, 4),
    Sketcher.Constraint("DistanceX", 0, 2, 3, 1, 5.0),
    Sketcher.Constraint("DistanceY", 2, 1, 2, 2, 5.14),
    Sketcher.Constraint("Radius", 3, 8.231911),
    Sketcher.Constraint("DistanceX", 1, 1, 1, 2, 6.1517),
    Sketcher.Constraint("DistanceY", 0, 2, 0, 1, 0.569801),
    Sketcher.Constraint("DistanceX", 0, 2, -1, 1, 31.989369),
    Sketcher.Constraint("DistanceY", 0, 2, -1, 1, 2.123861),
])
pocket7 = doc.addObject("PartDesign::Pocket", "Pocket006")
body.addObject(pocket7)
pocket7.Profile = sketch14
pocket7.Length = 5.14

sketch15 = doc.addObject("Sketcher::SketchObject", "Sketch014")
body.addObject(sketch15)
sketch15.AttachmentSupport = (doc.XY_Plane, [""])
sketch15.MapMode = "FlatFace"
sketch15.AttachmentOffset = App.Placement(Vector(0, 0, 3.012954), App.Rotation())
add_polygon(sketch15, [(-68, 11), (-68, -11), (-42, -11), (-42, 11)])
sketch15.addConstraint([
    Sketcher.Constraint("Vertical", 0),
    Sketcher.Constraint("Horizontal", 1),
    Sketcher.Constraint("Vertical", 2),
    Sketcher.Constraint("Horizontal", 3),
    Sketcher.Constraint("DistanceX", 1, 1, 1, 2, 26.5),
    Sketcher.Constraint("DistanceY", 0, 2, 0, 1, 22.5),
    Sketcher.Constraint("DistanceY", 0, 2, -1, 1, 11.25),
    Sketcher.Constraint("DistanceX", 0, 2, -1, 1, 68.239369),
])
pocket8 = doc.addObject("PartDesign::Pocket", "Pocket007")
body.addObject(pocket8)
pocket8.Profile = sketch15
pocket8.Length = 2.25

sketch16 = doc.addObject("Sketcher::SketchObject", "Sketch015")
body.addObject(sketch16)
sketch16.AttachmentSupport = (doc.XY_Plane, [""])
sketch16.MapMode = "FlatFace"
sketch16.AttachmentOffset = App.Placement(Vector(0, 0, 6.012954), App.Rotation())
add_polygon(sketch16, [(-41.7, 2.5), (-41.7, -2.5), (-38.7, -2.5), (-38.7, 2.5)])
sketch16.addConstraint([
    Sketcher.Constraint("Vertical", 0),
    Sketcher.Constraint("Horizontal", 1),
    Sketcher.Constraint("Vertical", 2),
    Sketcher.Constraint("Horizontal", 3),
    Sketcher.Constraint("DistanceX", 1, 1, 1, 2, 3.0),
    Sketcher.Constraint("DistanceY", 0, 2, 0, 1, 5.0),
    Sketcher.Constraint("DistanceY", 0, 2, -1, 1, 2.5),
    Sketcher.Constraint("DistanceX", 0, 2, -1, 1, 41.739369),
])
pocket9 = doc.addObject("PartDesign::Pocket", "Pocket008")
body.addObject(pocket9)
pocket9.Profile = sketch16
pocket9.Length = 3

doc.recompute()
